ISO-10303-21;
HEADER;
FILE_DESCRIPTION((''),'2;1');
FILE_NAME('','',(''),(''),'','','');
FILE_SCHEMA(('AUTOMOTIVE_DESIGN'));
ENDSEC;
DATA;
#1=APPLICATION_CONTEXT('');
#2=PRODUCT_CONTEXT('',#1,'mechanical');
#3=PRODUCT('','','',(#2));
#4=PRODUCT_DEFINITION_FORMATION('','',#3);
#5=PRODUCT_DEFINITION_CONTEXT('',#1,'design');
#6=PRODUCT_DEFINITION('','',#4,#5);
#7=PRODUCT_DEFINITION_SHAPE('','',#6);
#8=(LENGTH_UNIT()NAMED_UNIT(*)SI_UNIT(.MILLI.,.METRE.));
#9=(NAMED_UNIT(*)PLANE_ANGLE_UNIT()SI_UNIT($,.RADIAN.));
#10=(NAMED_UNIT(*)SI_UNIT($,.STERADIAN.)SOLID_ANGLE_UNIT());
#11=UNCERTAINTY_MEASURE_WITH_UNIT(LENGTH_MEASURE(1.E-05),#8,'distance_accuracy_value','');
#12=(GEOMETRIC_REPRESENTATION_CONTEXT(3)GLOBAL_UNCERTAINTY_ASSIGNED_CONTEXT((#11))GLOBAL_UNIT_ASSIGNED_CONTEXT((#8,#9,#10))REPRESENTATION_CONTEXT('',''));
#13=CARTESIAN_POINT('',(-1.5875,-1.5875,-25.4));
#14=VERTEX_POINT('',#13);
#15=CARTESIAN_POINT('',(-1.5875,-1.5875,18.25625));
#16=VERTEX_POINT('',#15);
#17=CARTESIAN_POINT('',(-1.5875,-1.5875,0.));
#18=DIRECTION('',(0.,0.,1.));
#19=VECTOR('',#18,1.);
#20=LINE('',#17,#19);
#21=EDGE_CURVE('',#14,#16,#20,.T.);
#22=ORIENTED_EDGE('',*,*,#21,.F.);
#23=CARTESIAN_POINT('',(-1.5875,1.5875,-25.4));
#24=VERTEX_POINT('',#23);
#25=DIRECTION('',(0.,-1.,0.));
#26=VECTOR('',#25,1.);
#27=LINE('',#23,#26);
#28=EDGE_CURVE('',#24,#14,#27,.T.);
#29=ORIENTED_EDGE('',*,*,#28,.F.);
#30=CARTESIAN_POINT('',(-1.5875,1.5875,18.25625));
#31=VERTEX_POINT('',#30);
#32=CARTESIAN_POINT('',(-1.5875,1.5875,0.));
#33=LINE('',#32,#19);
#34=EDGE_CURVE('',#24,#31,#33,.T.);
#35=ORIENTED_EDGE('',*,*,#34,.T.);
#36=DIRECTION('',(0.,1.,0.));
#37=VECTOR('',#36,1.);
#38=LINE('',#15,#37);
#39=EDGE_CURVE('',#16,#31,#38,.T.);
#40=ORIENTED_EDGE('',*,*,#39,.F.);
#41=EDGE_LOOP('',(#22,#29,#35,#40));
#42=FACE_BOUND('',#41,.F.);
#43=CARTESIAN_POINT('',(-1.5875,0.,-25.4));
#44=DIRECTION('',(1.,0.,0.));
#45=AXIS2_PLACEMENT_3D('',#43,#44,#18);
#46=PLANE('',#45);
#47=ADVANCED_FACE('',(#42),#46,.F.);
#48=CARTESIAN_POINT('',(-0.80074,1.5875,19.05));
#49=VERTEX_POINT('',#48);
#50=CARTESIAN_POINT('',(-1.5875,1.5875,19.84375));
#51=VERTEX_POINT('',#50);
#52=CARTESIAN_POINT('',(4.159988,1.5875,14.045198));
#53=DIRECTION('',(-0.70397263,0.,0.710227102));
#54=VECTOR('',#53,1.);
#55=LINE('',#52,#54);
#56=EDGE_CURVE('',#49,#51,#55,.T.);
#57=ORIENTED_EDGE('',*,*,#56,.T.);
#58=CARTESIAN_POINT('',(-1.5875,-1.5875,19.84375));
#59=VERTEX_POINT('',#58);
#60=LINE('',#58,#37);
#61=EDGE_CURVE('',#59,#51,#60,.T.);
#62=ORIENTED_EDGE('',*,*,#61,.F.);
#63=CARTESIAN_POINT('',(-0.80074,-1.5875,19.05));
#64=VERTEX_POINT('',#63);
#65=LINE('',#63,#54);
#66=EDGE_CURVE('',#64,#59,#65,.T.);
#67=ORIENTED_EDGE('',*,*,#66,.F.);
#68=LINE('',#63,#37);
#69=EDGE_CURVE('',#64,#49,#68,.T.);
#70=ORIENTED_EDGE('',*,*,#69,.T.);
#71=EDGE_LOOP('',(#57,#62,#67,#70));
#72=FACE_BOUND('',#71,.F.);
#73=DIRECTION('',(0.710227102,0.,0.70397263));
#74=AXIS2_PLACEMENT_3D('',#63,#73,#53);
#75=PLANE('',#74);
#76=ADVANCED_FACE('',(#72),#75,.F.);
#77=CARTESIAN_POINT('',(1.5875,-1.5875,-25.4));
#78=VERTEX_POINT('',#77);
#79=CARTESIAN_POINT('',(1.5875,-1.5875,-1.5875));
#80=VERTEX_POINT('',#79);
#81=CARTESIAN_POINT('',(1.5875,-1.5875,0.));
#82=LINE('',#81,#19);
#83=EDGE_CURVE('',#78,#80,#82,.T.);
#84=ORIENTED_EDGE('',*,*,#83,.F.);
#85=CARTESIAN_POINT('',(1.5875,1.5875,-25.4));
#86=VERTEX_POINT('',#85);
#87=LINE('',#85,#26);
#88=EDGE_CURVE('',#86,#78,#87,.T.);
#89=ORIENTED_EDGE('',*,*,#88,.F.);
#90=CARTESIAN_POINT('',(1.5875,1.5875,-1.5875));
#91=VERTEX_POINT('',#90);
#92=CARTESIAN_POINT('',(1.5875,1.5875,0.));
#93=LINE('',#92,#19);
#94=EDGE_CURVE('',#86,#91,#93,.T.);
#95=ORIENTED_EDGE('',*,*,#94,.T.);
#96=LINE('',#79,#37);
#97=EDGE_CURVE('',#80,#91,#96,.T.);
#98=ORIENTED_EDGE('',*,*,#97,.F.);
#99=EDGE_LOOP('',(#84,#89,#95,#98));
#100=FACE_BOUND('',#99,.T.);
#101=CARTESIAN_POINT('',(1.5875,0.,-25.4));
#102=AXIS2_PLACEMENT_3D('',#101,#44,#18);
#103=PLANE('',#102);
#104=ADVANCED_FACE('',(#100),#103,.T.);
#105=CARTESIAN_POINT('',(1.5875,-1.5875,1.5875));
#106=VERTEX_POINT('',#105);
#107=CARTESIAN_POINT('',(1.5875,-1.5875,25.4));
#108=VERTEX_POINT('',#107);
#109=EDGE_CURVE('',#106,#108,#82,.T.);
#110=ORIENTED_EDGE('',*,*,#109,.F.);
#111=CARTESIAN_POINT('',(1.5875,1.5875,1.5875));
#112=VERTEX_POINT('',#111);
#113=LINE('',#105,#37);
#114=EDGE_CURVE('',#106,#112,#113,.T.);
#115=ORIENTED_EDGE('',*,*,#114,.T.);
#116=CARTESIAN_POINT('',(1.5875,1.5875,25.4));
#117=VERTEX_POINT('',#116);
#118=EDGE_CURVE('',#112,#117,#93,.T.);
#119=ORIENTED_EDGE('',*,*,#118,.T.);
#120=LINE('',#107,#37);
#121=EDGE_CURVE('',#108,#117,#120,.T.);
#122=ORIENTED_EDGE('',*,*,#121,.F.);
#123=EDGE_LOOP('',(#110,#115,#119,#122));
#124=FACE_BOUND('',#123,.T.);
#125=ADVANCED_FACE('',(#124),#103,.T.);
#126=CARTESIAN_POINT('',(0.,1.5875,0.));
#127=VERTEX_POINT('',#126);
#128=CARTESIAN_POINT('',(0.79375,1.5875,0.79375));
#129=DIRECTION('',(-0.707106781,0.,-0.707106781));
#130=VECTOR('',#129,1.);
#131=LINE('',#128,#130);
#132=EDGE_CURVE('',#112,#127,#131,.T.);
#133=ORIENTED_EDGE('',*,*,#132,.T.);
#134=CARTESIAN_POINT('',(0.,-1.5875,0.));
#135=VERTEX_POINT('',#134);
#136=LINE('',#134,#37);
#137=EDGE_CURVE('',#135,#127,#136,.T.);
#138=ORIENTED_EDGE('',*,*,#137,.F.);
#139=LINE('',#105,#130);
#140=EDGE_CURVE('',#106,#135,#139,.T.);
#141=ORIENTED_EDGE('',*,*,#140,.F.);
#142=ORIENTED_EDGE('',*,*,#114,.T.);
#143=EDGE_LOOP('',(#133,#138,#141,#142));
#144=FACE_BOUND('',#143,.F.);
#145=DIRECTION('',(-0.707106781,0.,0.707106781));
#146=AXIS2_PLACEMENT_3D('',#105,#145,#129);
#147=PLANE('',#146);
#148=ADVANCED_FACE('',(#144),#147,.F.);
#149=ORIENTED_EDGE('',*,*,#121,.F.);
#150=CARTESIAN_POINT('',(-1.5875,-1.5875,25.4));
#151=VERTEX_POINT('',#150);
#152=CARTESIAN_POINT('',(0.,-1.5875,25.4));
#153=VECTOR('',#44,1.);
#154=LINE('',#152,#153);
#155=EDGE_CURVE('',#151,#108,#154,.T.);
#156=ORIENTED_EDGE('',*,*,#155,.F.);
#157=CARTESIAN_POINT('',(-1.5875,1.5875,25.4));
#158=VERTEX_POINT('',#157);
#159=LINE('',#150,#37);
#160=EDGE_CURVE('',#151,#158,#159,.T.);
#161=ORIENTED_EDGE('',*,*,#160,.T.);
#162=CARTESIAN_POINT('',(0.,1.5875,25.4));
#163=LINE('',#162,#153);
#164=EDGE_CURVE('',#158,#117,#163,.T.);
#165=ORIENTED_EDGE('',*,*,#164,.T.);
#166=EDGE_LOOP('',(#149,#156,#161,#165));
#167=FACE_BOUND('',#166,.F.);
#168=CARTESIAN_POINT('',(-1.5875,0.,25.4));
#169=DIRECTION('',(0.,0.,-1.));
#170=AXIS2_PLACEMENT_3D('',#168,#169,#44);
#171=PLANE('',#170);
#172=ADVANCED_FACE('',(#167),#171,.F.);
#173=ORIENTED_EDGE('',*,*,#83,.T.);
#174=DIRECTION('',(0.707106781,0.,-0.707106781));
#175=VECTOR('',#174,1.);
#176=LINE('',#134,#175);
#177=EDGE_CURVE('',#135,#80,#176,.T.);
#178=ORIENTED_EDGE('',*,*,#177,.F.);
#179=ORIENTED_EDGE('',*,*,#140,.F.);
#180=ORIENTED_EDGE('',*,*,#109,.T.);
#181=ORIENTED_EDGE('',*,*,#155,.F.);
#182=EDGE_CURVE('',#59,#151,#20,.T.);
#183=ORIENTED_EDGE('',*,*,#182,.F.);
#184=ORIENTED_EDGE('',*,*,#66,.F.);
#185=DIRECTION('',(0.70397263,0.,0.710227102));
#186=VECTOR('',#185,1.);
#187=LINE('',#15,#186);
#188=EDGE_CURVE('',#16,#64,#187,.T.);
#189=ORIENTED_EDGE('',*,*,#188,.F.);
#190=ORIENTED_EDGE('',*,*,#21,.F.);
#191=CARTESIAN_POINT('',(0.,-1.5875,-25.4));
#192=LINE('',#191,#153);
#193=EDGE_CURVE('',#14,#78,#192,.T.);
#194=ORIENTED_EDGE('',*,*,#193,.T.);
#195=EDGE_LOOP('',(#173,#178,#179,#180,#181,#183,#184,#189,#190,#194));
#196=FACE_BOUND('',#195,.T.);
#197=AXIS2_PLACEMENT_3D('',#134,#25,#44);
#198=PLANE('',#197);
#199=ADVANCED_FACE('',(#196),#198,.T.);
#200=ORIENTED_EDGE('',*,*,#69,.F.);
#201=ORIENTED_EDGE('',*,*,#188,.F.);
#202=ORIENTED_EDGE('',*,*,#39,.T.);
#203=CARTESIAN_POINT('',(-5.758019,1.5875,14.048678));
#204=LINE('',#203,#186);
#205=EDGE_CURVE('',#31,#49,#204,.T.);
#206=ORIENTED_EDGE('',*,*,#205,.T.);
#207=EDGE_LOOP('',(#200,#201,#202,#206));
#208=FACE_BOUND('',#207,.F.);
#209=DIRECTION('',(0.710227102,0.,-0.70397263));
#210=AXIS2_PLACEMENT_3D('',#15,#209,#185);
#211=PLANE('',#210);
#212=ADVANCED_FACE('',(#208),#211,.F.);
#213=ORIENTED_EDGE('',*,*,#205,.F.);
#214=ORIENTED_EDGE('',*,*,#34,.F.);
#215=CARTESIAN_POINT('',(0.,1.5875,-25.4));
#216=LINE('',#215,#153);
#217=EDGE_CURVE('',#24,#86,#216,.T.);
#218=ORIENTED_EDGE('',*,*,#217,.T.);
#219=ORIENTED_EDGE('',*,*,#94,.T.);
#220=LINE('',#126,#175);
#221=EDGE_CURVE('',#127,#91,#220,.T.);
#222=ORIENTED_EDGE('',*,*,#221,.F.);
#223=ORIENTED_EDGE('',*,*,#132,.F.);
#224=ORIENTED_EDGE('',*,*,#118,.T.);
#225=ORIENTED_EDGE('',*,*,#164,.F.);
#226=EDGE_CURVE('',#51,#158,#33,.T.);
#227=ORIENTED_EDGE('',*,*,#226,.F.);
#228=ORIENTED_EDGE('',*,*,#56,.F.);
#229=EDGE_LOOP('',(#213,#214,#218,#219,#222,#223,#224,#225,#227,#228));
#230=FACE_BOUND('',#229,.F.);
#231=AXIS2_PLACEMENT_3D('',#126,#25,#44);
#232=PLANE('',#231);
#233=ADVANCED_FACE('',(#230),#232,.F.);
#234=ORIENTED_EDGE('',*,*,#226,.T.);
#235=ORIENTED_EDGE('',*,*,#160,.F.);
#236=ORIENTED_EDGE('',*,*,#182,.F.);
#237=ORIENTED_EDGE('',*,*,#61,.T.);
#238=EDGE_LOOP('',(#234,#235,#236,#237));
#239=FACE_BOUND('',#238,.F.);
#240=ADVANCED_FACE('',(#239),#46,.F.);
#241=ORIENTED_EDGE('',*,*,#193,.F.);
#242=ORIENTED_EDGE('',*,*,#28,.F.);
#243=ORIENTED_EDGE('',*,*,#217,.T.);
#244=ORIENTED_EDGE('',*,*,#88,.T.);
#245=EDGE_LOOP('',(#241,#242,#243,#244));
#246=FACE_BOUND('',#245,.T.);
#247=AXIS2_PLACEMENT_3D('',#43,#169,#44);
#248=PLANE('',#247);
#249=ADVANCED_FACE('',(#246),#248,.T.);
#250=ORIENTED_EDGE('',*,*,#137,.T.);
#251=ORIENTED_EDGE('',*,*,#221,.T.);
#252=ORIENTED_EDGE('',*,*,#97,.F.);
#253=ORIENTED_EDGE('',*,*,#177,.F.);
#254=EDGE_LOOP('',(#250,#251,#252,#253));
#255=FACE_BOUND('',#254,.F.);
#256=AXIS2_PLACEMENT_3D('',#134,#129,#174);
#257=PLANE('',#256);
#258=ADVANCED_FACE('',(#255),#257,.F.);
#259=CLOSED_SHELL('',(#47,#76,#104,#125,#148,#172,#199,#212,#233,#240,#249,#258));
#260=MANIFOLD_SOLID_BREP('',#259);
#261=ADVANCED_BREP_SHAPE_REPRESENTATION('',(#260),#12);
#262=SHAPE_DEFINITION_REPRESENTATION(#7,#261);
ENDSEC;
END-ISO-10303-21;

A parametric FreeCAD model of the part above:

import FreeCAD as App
import Part
import Sketcher
from FreeCAD import Vector
Q = App.Units.Quantity


def add_polygon(sketch, points):
    """Adds a closed chain of lines whose ends are joined by coincident constraints."""
    first, n = sketch.GeometryCount, len(points)
    for a, b in zip(points, points[1:] + points[:1]):
        sketch.addGeometry(Part.LineSegment(App.Vector(*a, 0), App.Vector(*b, 0)), False)
    for i in range(n):
        sketch.addConstraint(Sketcher.Constraint("Coincident", first + i, 2, first + (i + 1) % n, 1))

doc = App.newDocument("Part")
body = doc.addObject("PartDesign::Body", "Body")

# Sketch on XZ plane
sketch1 = doc.addObject("Sketcher::SketchObject", "Sketch")
body.addObject(sketch1)
sketch1.AttachmentSupport = (doc.XZ_Plane, [""])
sketch1.MapMode = "FlatFace"
add_polygon(sketch1, [(-1.6, 25.4), (-1.6, -25.4), (1.6, -25.4), (1.6, 25.4)])  # lines 0-3
sketch1.addConstraint(Sketcher.Constraint("Vertical", 0))
sketch1.addConstraint(Sketcher.Constraint("Horizontal", 1))
sketch1.addConstraint(Sketcher.Constraint("Vertical", 2))
sketch1.addConstraint(Sketcher.Constraint("Horizontal", 3))
sketch1.addConstraint(Sketcher.Constraint("Symmetric", 0, 2, 2, 2, -1, 1))
sketch1.addConstraint(Sketcher.Constraint("DistanceY", 0, 2, 0, 1, Q("2 in")))
sketch1.addConstraint(Sketcher.Constraint("DistanceX", 1, 1, 1, 2, Q("0.125 in")))
pad1 = doc.addObject("PartDesign::Pad", "Pad")
body.addObject(pad1)
pad1.Profile = sketch1
pad1.Length = Q("0.125 in")
pad1.Midplane = True

# Sketch on XZ plane
sketch2 = doc.addObject("Sketcher::SketchObject", "Sketch001")
body.addObject(sketch2)
sketch2.AttachmentSupport = (doc.XZ_Plane, [""])
sketch2.MapMode = "FlatFace"
sketch2.AttachmentOffset = App.Placement(Vector(0, 0, 0.0625 * 25.4), App.Rotation())
add_polygon(sketch2, [(0, 0), (1.6, 0), (1.6, 1.6)])  # lines 0-2
sketch2.addConstraint(Sketcher.Constraint("Horizontal", 0))
sketch2.addConstraint(Sketcher.Constraint("Vertical", 1))
sketch2.addConstraint(Sketcher.Constraint("Coincident", 2, 2, -1, 1))
sketch2.addConstraint(Sketcher.Constraint("Equal", 0, 1))
sketch2.addConstraint(Sketcher.Constraint("DistanceX", 0, 1, 0, 2, Q("0.0625 in")))
pocket1 = doc.addObject("PartDesign::Pocket", "Pocket")
body.addObject(pocket1)
pocket1.Profile = sketch2
pocket1.Type = "ThroughAll"

# Sketch on XZ plane
sketch3 = doc.addObject("Sketcher::SketchObject", "Sketch002")
body.addObject(sketch3)
sketch3.AttachmentSupport = (doc.XZ_Plane, [""])
sketch3.MapMode = "FlatFace"
sketch3.AttachmentOffset = App.Placement(Vector(0, 0, 0.0625 * 25.4), App.Rotation())
add_polygon(sketch3, [(1.6, 0), (0, 0), (1.6, -1.6)])  # lines 0-2
sketch3.addConstraint(Sketcher.Constraint("Horizontal", 0))
sketch3.addConstraint(Sketcher.Constraint("Vertical", 2))
sketch3.addConstraint(Sketcher.Constraint("Coincident", 0, 2, -1, 1))
sketch3.addConstraint(Sketcher.Constraint("Equal", 0, 2))
sketch3.addConstraint(Sketcher.Constraint("DistanceX", 0, 2, 0, 1, Q("0.0625 in")))
pocket2 = doc.addObject("PartDesign::Pocket", "Pocket001")
body.addObject(pocket2)
pocket2.Profile = sketch3
pocket2.Type = "ThroughAll"

# Sketch on XZ plane
sketch4 = doc.addObject("Sketcher::SketchObject", "Sketch003")
body.addObject(sketch4)
sketch4.AttachmentSupport = (doc.XZ_Plane, [""])
sketch4.MapMode = "FlatFace"
sketch4.AttachmentOffset = App.Placement(Vector(0, 0, 0.0625 * 25.4), App.Rotation())
add_polygon(sketch4, [(-1.6, 18.3), (-0.8, 19.1), (-1.6, 19.8)])  # lines 0-2
sketch4.addConstraint(Sketcher.Constraint("Vertical", 2))
sketch4.addConstraint(Sketcher.Constraint("Equal", 0, 1))
sketch4.addConstraint(Sketcher.Constraint("DistanceY", 2, 2, 2, 1, Q("0.0625 in")))
sketch4.addConstraint(Sketcher.Constraint("DistanceY", -1, 1, 0, 2, Q("0.75 in")))
sketch4.addConstraint(Sketcher.Constraint("Distance", 0, Q("0.044 in")))
sketch4.addConstraint(Sketcher.Constraint("DistanceX", 1, 2, -1, 1, Q("0.0625 in")))
pocket3 = doc.addObject("PartDesign::Pocket", "Pocket002")
body.addObject(pocket3)
pocket3.Profile = sketch4
pocket3.Type = "ThroughAll"

doc.recompute()
